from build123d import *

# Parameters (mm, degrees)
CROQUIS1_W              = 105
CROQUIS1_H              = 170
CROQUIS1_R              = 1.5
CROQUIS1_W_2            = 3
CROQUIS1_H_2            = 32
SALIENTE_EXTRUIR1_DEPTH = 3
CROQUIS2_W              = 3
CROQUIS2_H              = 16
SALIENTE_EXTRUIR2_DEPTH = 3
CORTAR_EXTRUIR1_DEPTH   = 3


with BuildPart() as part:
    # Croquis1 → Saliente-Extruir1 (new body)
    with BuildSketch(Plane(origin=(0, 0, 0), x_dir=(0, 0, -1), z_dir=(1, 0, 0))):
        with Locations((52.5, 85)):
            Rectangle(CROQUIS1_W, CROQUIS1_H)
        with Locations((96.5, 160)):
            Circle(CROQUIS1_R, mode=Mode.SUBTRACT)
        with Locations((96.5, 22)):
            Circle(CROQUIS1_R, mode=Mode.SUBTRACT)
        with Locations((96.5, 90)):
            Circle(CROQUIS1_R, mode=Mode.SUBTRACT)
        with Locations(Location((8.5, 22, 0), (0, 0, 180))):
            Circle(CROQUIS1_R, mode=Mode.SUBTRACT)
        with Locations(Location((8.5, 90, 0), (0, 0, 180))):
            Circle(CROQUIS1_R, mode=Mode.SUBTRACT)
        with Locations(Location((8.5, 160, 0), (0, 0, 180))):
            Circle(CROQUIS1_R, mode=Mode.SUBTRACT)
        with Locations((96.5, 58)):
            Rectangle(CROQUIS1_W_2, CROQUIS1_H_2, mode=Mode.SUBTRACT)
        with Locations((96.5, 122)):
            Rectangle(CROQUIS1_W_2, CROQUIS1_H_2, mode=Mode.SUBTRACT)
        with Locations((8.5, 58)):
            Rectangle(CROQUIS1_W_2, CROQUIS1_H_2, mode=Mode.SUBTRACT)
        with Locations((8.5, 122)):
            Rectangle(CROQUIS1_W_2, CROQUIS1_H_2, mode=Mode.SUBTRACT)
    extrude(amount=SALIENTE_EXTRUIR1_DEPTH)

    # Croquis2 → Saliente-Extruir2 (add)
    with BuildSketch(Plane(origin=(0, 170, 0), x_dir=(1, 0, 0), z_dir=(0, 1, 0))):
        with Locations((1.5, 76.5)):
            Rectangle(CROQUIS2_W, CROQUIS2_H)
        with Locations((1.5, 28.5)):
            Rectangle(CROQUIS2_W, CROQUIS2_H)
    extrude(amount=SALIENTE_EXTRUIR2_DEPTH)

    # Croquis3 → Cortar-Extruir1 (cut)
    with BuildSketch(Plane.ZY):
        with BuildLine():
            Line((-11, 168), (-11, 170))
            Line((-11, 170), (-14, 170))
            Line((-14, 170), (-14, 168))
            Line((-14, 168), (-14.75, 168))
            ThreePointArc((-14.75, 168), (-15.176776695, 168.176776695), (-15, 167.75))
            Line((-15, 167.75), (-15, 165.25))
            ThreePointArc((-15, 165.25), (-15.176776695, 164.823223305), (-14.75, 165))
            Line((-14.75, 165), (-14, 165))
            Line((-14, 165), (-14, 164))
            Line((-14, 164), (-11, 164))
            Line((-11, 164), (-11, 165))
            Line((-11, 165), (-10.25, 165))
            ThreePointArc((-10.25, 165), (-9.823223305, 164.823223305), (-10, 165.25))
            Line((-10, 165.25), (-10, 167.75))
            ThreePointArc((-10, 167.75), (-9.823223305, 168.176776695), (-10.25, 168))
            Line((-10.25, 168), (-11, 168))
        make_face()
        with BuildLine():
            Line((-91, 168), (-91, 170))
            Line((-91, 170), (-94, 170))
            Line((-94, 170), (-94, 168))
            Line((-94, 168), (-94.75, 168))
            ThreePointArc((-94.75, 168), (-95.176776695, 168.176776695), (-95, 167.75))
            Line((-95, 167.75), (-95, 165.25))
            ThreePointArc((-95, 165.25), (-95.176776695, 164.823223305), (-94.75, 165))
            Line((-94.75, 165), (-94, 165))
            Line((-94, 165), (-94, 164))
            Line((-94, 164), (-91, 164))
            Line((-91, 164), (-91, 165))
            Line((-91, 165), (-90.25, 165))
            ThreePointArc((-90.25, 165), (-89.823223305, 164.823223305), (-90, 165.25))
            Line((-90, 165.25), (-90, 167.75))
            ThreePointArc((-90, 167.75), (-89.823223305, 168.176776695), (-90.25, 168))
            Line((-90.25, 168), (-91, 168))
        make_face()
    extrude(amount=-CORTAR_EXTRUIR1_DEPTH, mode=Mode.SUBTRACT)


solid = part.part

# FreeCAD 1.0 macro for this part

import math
import FreeCAD as App
import Part
import Sketcher
from FreeCAD import Vector
Q = App.Units.Quantity

doc = App.newDocument("Part")
body = doc.addObject("PartDesign::Body", "Body")

sketch1 = body.newObject("Sketcher::SketchObject", "Sketch")
sketch1.AttachmentSupport = (doc.getObject("YZ_Plane"), [""])
sketch1.MapMode = "FlatFace"
sketch1.addGeometry([
    Part.LineSegment(Vector(170, 0, 0), Vector(0, 0, 0)),
    Part.LineSegment(Vector(0, 0, 0), Vector(0, -105, 0)),
    Part.LineSegment(Vector(0, -105, 0), Vector(170, -105, 0)),
    Part.LineSegment(Vector(170, -105, 0), Vector(170, 0, 0)),
    Part.Circle(Vector(22, -8.5, 0), Vector(0, 0, 1), 1.5),
    Part.LineSegment(Vector(42, -10, 0), Vector(42, -7, 0)),
    Part.LineSegment(Vector(42, -7, 0), Vector(74, -7, 0)),
    Part.LineSegment(Vector(74, -7, 0), Vector(74, -10, 0)),
    Part.LineSegment(Vector(74, -10, 0), Vector(42, -10, 0)),
    Part.Circle(Vector(90, -8.5, 0), Vector(0, 0, 1), 1.5),
    Part.Circle(Vector(22, -96.5, 0), Vector(0, 0, 1), 1.5),
    Part.LineSegment(Vector(42, -98, 0), Vector(42, -95, 0)),
    Part.LineSegment(Vector(42, -95, 0), Vector(74, -95, 0)),
    Part.LineSegment(Vector(74, -95, 0), Vector(74, -98, 0)),
    Part.LineSegment(Vector(74, -98, 0), Vector(42, -98, 0)),
    Part.Circle(Vector(90, -96.5, 0), Vector(0, 0, 1), 1.5),
    Part.LineSegment(Vector(106, -10, 0), Vector(106, -7, 0)),
    Part.LineSegment(Vector(106, -7, 0), Vector(138, -7, 0)),
    Part.LineSegment(Vector(138, -7, 0), Vector(138, -10, 0)),
    Part.LineSegment(Vector(138, -10, 0), Vector(106, -10, 0)),
    Part.Circle(Vector(160, -8.5, 0), Vector(0, 0, 1), 1.5),
    Part.LineSegment(Vector(106, -98, 0), Vector(106, -95, 0)),
    Part.LineSegment(Vector(106, -95, 0), Vector(138, -95, 0)),
    Part.LineSegment(Vector(138, -95, 0), Vector(138, -98, 0)),
    Part.LineSegment(Vector(138, -98, 0), Vector(106, -98, 0)),
    Part.Circle(Vector(160, -96.5, 0), Vector(0, 0, 1), 1.5),
], False)
sketch1.addConstraint([
    Sketcher.Constraint("Coincident", 0, 2, 1, 1),
    Sketcher.Constraint("Coincident", 1, 2, 2, 1),
    Sketcher.Constraint("Coincident", 2, 2, 3, 1),
    Sketcher.Constraint("Coincident", 3, 2, 0, 1),
    Sketcher.Constraint("Coincident", 5, 2, 6, 1),
    Sketcher.Constraint("Coincident", 6, 2, 7, 1),
    Sketcher.Constraint("Coincident", 7, 2, 8, 1),
    Sketcher.Constraint("Coincident", 8, 2, 5, 1),
    Sketcher.Constraint("Coincident", 11, 2, 12, 1),
    Sketcher.Constraint("Coincident", 12, 2, 13, 1),
    Sketcher.Constraint("Coincident", 13, 2, 14, 1),
    Sketcher.Constraint("Coincident", 14, 2, 11, 1),
    Sketcher.Constraint("Coincident", 16, 2, 17, 1),
    Sketcher.Constraint("Coincident", 17, 2, 18, 1),
    Sketcher.Constraint("Coincident", 18, 2, 19, 1),
    Sketcher.Constraint("Coincident", 19, 2, 16, 1),
    Sketcher.Constraint("Coincident", 21, 2, 22, 1),
    Sketcher.Constraint("Coincident", 22, 2, 23, 1),
    Sketcher.Constraint("Coincident", 23, 2, 24, 1),
    Sketcher.Constraint("Coincident", 24, 2, 21, 1),
    Sketcher.Constraint("Horizontal", 0),
    Sketcher.Constraint("Vertical", 1),
    Sketcher.Constraint("Horizontal", 2),
    Sketcher.Constraint("Vertical", 3),
    Sketcher.Constraint("Vertical", 5),
    Sketcher.Constraint("Horizontal", 6),
    Sketcher.Constraint("Vertical", 7),
    Sketcher.Constraint("Horizontal", 8),
    Sketcher.Constraint("Vertical", 11),
    Sketcher.Constraint("Horizontal", 12),
    Sketcher.Constraint("Vertical", 13),
    Sketcher.Constraint("Horizontal", 14),
    Sketcher.Constraint("Vertical", 16),
    Sketcher.Constraint("Horizontal", 17),
    Sketcher.Constraint("Vertical", 18),
    Sketcher.Constraint("Horizontal", 19),
    Sketcher.Constraint("Vertical", 21),
    Sketcher.Constraint("Horizontal", 22),
    Sketcher.Constraint("Vertical", 23),
    Sketcher.Constraint("Horizontal", 24),
    Sketcher.Constraint("Coincident", 0, 2, -1, 1),
    Sketcher.Constraint("Equal", 4, 9),
    Sketcher.Constraint("Equal", 9, 10),
    Sketcher.Constraint("Equal", 10, 15),
    Sketcher.Constraint("Equal", 15, 20),
    Sketcher.Constraint("Equal", 20, 25),
    Sketcher.Constraint("Horizontal", 4, 3, 9, 3),
    Sketcher.Constraint("Horizontal", 10, 3, 15, 3),
    Sketcher.Constraint("Horizontal", 9, 3, 20, 3),
    Sketcher.Constraint("Horizontal", 15, 3, 25, 3),
    Sketcher.Constraint("Horizontal", 6, 2, 16, 2),
    Sketcher.Constraint("Horizontal", 8, 2, 18, 2),
    Sketcher.Constraint("Horizontal", 12, 2, 21, 2),
    Sketcher.Constraint("Horizontal", 14, 2, 23, 2),
    Sketcher.Constraint("Vertical", 4, 3, 10, 3),
    Sketcher.Constraint("Vertical", 9, 3, 15, 3),
    Sketcher.Constraint("Vertical", 20, 3, 25, 3),
    Sketcher.Constraint("Vertical", 8, 2, 11, 2),
    Sketcher.Constraint("Vertical", 7, 2, 12, 2),
    Sketcher.Constraint("Vertical", 19, 2, 21, 2),
    Sketcher.Constraint("Vertical", 18, 2, 22, 2),
    Sketcher.Constraint("Equal", 14, 17),
    Sketcher.Constraint("Equal", 7, 11),
    Sketcher.Constraint("Diameter", 4, Q("3 mm")),
    Sketcher.Constraint("DistanceX", 0, 2, 0, 1, Q("170 mm")),
    Sketcher.Constraint("DistanceX", 6, 1, 6, 2, Q("32 mm")),
    Sketcher.Constraint("DistanceY", 1, 2, 1, 1, Q("105 mm")),
    Sketcher.Constraint("DistanceY", 5, 1, 5, 2, Q("3 mm")),
    Sketcher.Constraint("DistanceX", -1, 1, 4, 3, Q("22 mm")),
    Sketcher.Constraint("DistanceX", -1, 1, 9, 3, Q("90 mm")),
    Sketcher.Constraint("DistanceX", -1, 1, 20, 3, Q("160 mm")),
    Sketcher.Constraint("DistanceX", -1, 1, 5, 2, Q("42 mm")),
    Sketcher.Constraint("DistanceY", 5, 2, -1, 1, Q("7 mm")),
    Sketcher.Constraint("DistanceY", 11, 2, -1, 1, Q("95 mm")),
    Sketcher.Constraint("DistanceX", -1, 1, 16, 2, Q("106 mm")),
    Sketcher.Constraint("DistanceY", 10, 3, 4, 3, Q("88 mm")),
    Sketcher.Constraint("DistanceY", 4, 3, -1, 1, Q("8.5 mm")),
])
pad1 = body.newObject("PartDesign::Pad", "Pad")
pad1.Profile = sketch1
pad1.Length = 3

sketch2 = body.newObject("Sketcher::SketchObject", "Sketch001")
sketch2.AttachmentSupport = (doc.getObject("XZ_Plane"), [""])
sketch2.MapMode = "FlatFace"
sketch2.AttachmentOffset = App.Placement(Vector(0, 0, -170), App.Rotation())
sketch2.addGeometry([
    Part.LineSegment(Vector(0, -84.5, 0), Vector(0, -68.5, 0)),
    Part.LineSegment(Vector(0, -68.5, 0), Vector(3, -68.5, 0)),
    Part.LineSegment(Vector(3, -68.5, 0), Vector(3, -84.5, 0)),
    Part.LineSegment(Vector(3, -84.5, 0), Vector(0, -84.5, 0)),
    Part.LineSegment(Vector(0, -36.5, 0), Vector(0, -20.5, 0)),
    Part.LineSegment(Vector(0, -20.5, 0), Vector(3, -20.5, 0)),
    Part.LineSegment(Vector(3, -20.5, 0), Vector(3, -36.5, 0)),
    Part.LineSegment(Vector(3, -36.5, 0), Vector(0, -36.5, 0)),
], False)
sketch2.addConstraint([
    Sketcher.Constraint("Coincident", 0, 2, 1, 1),
    Sketcher.Constraint("Coincident", 1, 2, 2, 1),
    Sketcher.Constraint("Coincident", 2, 2, 3, 1),
    Sketcher.Constraint("Coincident", 3, 2, 0, 1),
    Sketcher.Constraint("Coincident", 4, 2, 5, 1),
    Sketcher.Constraint("Coincident", 5, 2, 6, 1),
    Sketcher.Constraint("Coincident", 6, 2, 7, 1),
    Sketcher.Constraint("Coincident", 7, 2, 4, 1),
    Sketcher.Constraint("Vertical", 0),
    Sketcher.Constraint("Horizontal", 1),
    Sketcher.Constraint("Vertical", 2),
    Sketcher.Constraint("Horizontal", 3),
    Sketcher.Constraint("Vertical", 4),
    Sketcher.Constraint("Horizontal", 5),
    Sketcher.Constraint("Vertical", 6),
    Sketcher.Constraint("Horizontal", 7),
    Sketcher.Constraint("PointOnObject", 0, 2, -2),
    Sketcher.Constraint("PointOnObject", 4, 2, -2),
    Sketcher.Constraint("Vertical", 2, 2, 5, 2),
    Sketcher.Constraint("Equal", 2, 4),
    Sketcher.Constraint("DistanceX", 1, 1, 1, 2, Q("3 mm")),
    Sketcher.Constraint("DistanceY", 0, 1, 0, 2, Q("16 mm")),
    Sketcher.Constraint("DistanceY", 0, 2, 4, 2, Q("48 mm")),
    Sketcher.Constraint("DistanceY", 0, 2, -1, 1, Q("68.5 mm")),
])
pad2 = body.newObject("PartDesign::Pad", "Pad001")
pad2.Profile = sketch2
pad2.Length = 3
pad2.Reversed = True

sketch3 = body.newObject("Sketcher::SketchObject", "Sketch002")
sketch3.AttachmentSupport = (doc.getObject("YZ_Plane"), [""])
sketch3.MapMode = "FlatFace"
sketch3.addGeometry([
    Part.LineSegment(Vector(168, -11, 0), Vector(170, -11, 0)),
    Part.LineSegment(Vector(170, -11, 0), Vector(170, -14, 0)),
    Part.LineSegment(Vector(170, -14, 0), Vector(168, -14, 0)),
    Part.LineSegment(Vector(168, -14, 0), Vector(168, -14.75, 0)),
    Part.ArcOfCircle(Part.Circle(Vector(168, -15, 0), Vector(0, 0, 1), 0.25), math.radians(180), math.radians(450)),
    Part.LineSegment(Vector(167.75, -15, 0), Vector(165.25, -15, 0)),
    Part.ArcOfCircle(Part.Circle(Vector(165, -15, 0), Vector(0, 0, 1), 0.25), math.radians(90), math.radians(360)),
    Part.LineSegment(Vector(165, -14.75, 0), Vector(165, -14, 0)),
    Part.LineSegment(Vector(165, -14, 0), Vector(164, -14, 0)),
    Part.LineSegment(Vector(164, -14, 0), Vector(164, -11, 0)),
    Part.LineSegment(Vector(164, -11, 0), Vector(165, -11, 0)),
    Part.LineSegment(Vector(165, -11, 0), Vector(165, -10.25, 0)),
    Part.ArcOfCircle(Part.Circle(Vector(165, -10, 0), Vector(0, 0, 1), 0.25), math.radians(0), math.radians(270)),
    Part.LineSegment(Vector(165.25, -10, 0), Vector(167.75, -10, 0)),
    Part.ArcOfCircle(Part.Circle(Vector(168, -10, 0), Vector(0, 0, 1), 0.25), math.radians(-90), math.radians(180)),
    Part.LineSegment(Vector(168, -10.25, 0), Vector(168, -11, 0)),
    Part.LineSegment(Vector(168, -91, 0), Vector(170, -91, 0)),
    Part.LineSegment(Vector(170, -91, 0), Vector(170, -94, 0)),
    Part.LineSegment(Vector(170, -94, 0), Vector(168, -94, 0)),
    Part.LineSegment(Vector(168, -94, 0), Vector(168, -94.75, 0)),
    Part.ArcOfCircle(Part.Circle(Vector(168, -95, 0), Vector(0, 0, 1), 0.25), math.radians(180), math.radians(450)),
    Part.LineSegment(Vector(167.75, -95, 0), Vector(165.25, -95, 0)),
    Part.ArcOfCircle(Part.Circle(Vector(165, -95, 0), Vector(0, 0, 1), 0.25), math.radians(90), math.radians(360)),
    Part.LineSegment(Vector(165, -94.75, 0), Vector(165, -94, 0)),
    Part.LineSegment(Vector(165, -94, 0), Vector(164, -94, 0)),
    Part.LineSegment(Vector(164, -94, 0), Vector(164, -91, 0)),
    Part.LineSegment(Vector(164, -91, 0), Vector(165, -91, 0)),
    Part.LineSegment(Vector(165, -91, 0), Vector(165, -90.25, 0)),
    Part.ArcOfCircle(Part.Circle(Vector(165, -90, 0), Vector(0, 0, 1), 0.25), math.radians(0), math.radians(270)),
    Part.LineSegment(Vector(165.25, -90, 0), Vector(167.75, -90, 0)),
    Part.ArcOfCircle(Part.Circle(Vector(168, -90, 0), Vector(0, 0, 1), 0.25), math.radians(-90), math.radians(180)),
    Part.LineSegment(Vector(168, -90.25, 0), Vector(168, -91, 0)),
], False)
sketch3.addConstraint([
    Sketcher.Constraint("Coincident", 0, 2, 1, 1),
    Sketcher.Constraint("Coincident", 1, 2, 2, 1),
    Sketcher.Constraint("Coincident", 2, 2, 3, 1),
    Sketcher.Constraint("Coincident", 3, 2, 4, 2),
    Sketcher.Constraint("Coincident", 4, 1, 5, 1),
    Sketcher.Constraint("Coincident", 5, 2, 6, 2),
    Sketcher.Constraint("Coincident", 6, 1, 7, 1),
    Sketcher.Constraint("Coincident", 7, 2, 8, 1),
    Sketcher.Constraint("Coincident", 8, 2, 9, 1),
    Sketcher.Constraint("Coincident", 9, 2, 10, 1),
    Sketcher.Constraint("Coincident", 10, 2, 11, 1),
    Sketcher.Constraint("Coincident", 11, 2, 12, 2),
    Sketcher.Constraint("Coincident", 12, 1, 13, 1),
    Sketcher.Constraint("Coincident", 13, 2, 14, 2),
    Sketcher.Constraint("Coincident", 14, 1, 15, 1),
    Sketcher.Constraint("Coincident", 15, 2, 0, 1),
    Sketcher.Constraint("Coincident", 16, 2, 17, 1),
    Sketcher.Constraint("Coincident", 17, 2, 18, 1),
    Sketcher.Constraint("Coincident", 18, 2, 19, 1),
    Sketcher.Constraint("Coincident", 19, 2, 20, 2),
    Sketcher.Constraint("Coincident", 20, 1, 21, 1),
    Sketcher.Constraint("Coincident", 21, 2, 22, 2),
    Sketcher.Constraint("Coincident", 22, 1, 23, 1),
    Sketcher.Constraint("Coincident", 23, 2, 24, 1),
    Sketcher.Constraint("Coincident", 24, 2, 25, 1),
    Sketcher.Constraint("Coincident", 25, 2, 26, 1),
    Sketcher.Constraint("Coincident", 26, 2, 27, 1),
    Sketcher.Constraint("Coincident", 27, 2, 28, 2),
    Sketcher.Constraint("Coincident", 28, 1, 29, 1),
    Sketcher.Constraint("Coincident", 29, 2, 30, 2),
    Sketcher.Constraint("Coincident", 30, 1, 31, 1),
    Sketcher.Constraint("Coincident", 31, 2, 16, 1),
    Sketcher.Constraint("Horizontal", 0),
    Sketcher.Constraint("Vertical", 1),
    Sketcher.Constraint("Horizontal", 2),
    Sketcher.Constraint("Vertical", 3),
    Sketcher.Constraint("Horizontal", 5),
    Sketcher.Constraint("Vertical", 7),
    Sketcher.Constraint("Horizontal", 8),
    Sketcher.Constraint("Vertical", 9),
    Sketcher.Constraint("Horizontal", 10),
    Sketcher.Constraint("Vertical", 11),
    Sketcher.Constraint("Horizontal", 13),
    Sketcher.Constraint("Vertical", 15),
    Sketcher.Constraint("Horizontal", 16),
    Sketcher.Constraint("Vertical", 17),
    Sketcher.Constraint("Horizontal", 18),
    Sketcher.Constraint("Vertical", 19),
    Sketcher.Constraint("Horizontal", 21),
    Sketcher.Constraint("Vertical", 23),
    Sketcher.Constraint("Horizontal", 24),
    Sketcher.Constraint("Vertical", 25),
    Sketcher.Constraint("Horizontal", 26),
    Sketcher.Constraint("Vertical", 27),
    Sketcher.Constraint("Horizontal", 29),
    Sketcher.Constraint("Vertical", 31),
    Sketcher.Constraint("Equal", 4, 6),
    Sketcher.Constraint("Equal", 6, 12),
    Sketcher.Constraint("Equal", 12, 14),
    Sketcher.Constraint("Equal", 14, 20),
    Sketcher.Constraint("Equal", 20, 22),
    Sketcher.Constraint("Equal", 22, 28),
    Sketcher.Constraint("Equal", 28, 30),
    Sketcher.Constraint("Horizontal", 4, 3, 6, 3),
    Sketcher.Constraint("Horizontal", 12, 3, 14, 3),
    Sketcher.Constraint("Horizontal", 20, 3, 22, 3),
    Sketcher.Constraint("Horizontal", 28, 3, 30, 3),
    Sketcher.Constraint("Horizontal", 6, 3, 4, 1),
    Sketcher.Constraint("Horizontal", 2, 2, 7, 2),
    Sketcher.Constraint("Horizontal", 0, 2, 9, 2),
    Sketcher.Constraint("Horizontal", 14, 3, 12, 1),
    Sketcher.Constraint("Horizontal", 22, 3, 20, 1),
    Sketcher.Constraint("Horizontal", 18, 2, 23, 2),
    Sketcher.Constraint("Horizontal", 16, 2, 25, 2),
    Sketcher.Constraint("Horizontal", 30, 3, 28, 1),
    Sketcher.Constraint("Vertical", 6, 3, 12, 3),
    Sketcher.Constraint("Vertical", 4, 3, 14, 3),
    Sketcher.Constraint("Vertical", 14, 3, 20, 3),
    Sketcher.Constraint("Vertical", 12, 3, 22, 3),
    Sketcher.Constraint("Vertical", 22, 3, 28, 3),
    Sketcher.Constraint("Vertical", 20, 3, 30, 3),
    Sketcher.Constraint("Vertical", 30, 3, 2, 2),
    Sketcher.Constraint("Vertical", 28, 3, 6, 1),
    Sketcher.Constraint("Vertical", 7, 2, 10, 2),
    Sketcher.Constraint("Vertical", 3, 2, 14, 1),
    Sketcher.Constraint("Vertical", 1, 2, 16, 2),
    Sketcher.Constraint("Vertical", 15, 2, 18, 2),
    Sketcher.Constraint("Vertical", 11, 2, 22, 1),
    Sketcher.Constraint("Vertical", 9, 2, 24, 2),
    Sketcher.Constraint("Vertical", 23, 2, 26, 2),
    Sketcher.Constraint("Vertical", 19, 2, 30, 1),
    Sketcher.Constraint("Equal", 7, 11),
    Sketcher.Constraint("Equal", 9, 17),
    Sketcher.Constraint("Equal", 15, 19),
    Sketcher.Constraint("Equal", 23, 27),
    Sketcher.Constraint("DistanceX", 0, 1, 0, 2, Q("2 mm")),
    Sketcher.Constraint("DistanceX", 8, 2, 8, 1, Q("1 mm")),
    Sketcher.Constraint("DistanceY", 1, 2, 1, 1, Q("3 mm")),
    Sketcher.Constraint("Radius", 4, Q("0.25 mm")),
    Sketcher.Constraint("DistanceX", 5, 2, 5, 1, Q("2.5 mm")),
    Sketcher.Constraint("DistanceX", -1, 1, 4, 3, Q("168 mm")),
    Sketcher.Constraint("DistanceY", 4, 3, -1, 1, Q("15 mm")),
    Sketcher.Constraint("DistanceY", 12, 3, -1, 1, Q("10 mm")),
    Sketcher.Constraint("DistanceY", 20, 3, -1, 1, Q("95 mm")),
])
pocket1 = body.newObject("PartDesign::Pocket", "Pocket")
pocket1.Profile = sketch3
pocket1.Length = 3
pocket1.Reversed = True

doc.recompute()
